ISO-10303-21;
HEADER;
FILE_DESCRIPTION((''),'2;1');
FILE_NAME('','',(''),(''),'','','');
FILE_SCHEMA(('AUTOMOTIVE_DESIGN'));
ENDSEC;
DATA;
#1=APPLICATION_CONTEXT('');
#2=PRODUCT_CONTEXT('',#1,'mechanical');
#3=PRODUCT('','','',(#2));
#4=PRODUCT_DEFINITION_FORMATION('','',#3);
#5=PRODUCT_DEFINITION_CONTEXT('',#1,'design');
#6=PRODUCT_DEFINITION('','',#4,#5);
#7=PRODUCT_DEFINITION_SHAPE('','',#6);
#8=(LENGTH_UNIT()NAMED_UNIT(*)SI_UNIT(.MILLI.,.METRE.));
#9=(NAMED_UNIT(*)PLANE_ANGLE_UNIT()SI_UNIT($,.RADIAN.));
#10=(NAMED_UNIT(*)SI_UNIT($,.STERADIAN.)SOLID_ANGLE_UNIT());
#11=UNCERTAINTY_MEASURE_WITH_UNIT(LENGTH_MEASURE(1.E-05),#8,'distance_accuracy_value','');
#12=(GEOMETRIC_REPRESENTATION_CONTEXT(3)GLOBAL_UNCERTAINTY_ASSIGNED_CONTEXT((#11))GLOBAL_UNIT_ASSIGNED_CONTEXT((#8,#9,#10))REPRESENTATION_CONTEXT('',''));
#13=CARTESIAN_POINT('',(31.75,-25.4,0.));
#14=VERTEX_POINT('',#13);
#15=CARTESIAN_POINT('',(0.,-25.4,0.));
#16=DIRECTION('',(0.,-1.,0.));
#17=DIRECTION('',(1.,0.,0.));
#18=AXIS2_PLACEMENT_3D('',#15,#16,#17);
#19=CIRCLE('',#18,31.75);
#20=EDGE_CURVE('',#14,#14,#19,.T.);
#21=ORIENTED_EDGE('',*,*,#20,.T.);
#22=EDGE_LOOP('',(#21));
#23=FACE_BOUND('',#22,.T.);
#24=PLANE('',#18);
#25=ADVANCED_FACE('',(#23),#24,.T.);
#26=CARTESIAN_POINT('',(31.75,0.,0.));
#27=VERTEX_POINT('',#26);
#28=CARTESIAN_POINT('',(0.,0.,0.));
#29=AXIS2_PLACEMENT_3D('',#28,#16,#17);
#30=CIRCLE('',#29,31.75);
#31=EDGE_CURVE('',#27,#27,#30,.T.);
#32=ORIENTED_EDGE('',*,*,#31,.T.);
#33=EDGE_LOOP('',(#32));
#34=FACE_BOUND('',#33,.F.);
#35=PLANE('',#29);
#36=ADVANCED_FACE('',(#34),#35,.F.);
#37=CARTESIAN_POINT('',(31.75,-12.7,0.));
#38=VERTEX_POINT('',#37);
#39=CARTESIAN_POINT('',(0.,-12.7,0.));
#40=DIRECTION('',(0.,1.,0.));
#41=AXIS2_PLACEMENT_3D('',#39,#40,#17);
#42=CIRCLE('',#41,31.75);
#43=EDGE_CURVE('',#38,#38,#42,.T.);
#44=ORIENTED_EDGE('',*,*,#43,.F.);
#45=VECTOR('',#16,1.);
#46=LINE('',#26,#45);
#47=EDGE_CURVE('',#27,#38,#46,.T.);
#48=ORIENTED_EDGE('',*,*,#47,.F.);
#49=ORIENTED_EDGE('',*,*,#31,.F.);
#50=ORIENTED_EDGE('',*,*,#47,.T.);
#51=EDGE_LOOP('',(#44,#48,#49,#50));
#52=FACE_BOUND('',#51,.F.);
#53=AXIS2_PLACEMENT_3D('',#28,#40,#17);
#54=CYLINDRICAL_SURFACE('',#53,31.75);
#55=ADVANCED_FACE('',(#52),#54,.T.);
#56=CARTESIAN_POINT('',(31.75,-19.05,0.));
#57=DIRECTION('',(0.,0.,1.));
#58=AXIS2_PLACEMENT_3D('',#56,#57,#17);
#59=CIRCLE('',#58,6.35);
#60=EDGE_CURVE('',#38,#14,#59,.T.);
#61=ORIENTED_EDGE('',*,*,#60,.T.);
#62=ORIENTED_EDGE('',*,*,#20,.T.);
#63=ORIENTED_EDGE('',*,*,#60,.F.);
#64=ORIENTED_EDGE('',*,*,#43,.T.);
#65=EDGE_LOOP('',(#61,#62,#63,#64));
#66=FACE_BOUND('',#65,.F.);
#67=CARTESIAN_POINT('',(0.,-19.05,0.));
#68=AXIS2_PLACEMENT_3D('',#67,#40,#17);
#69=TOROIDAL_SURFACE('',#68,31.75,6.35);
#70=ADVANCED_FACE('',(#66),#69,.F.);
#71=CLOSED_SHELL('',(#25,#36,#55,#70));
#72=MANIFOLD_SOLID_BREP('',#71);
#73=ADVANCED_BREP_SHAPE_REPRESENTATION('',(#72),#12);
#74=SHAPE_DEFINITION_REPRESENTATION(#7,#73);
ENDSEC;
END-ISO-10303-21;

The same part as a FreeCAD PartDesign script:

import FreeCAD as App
import Part
import Sketcher
from FreeCAD import Vector
Q = App.Units.Quantity

doc = App.newDocument("Part")
body = doc.addObject("PartDesign::Body", "Body")

sketch1 = body.newObject("Sketcher::SketchObject", "Sketch")
sketch1.AttachmentSupport = (doc.getObject("XZ_Plane"), [""])
sketch1.MapMode = "FlatFace"
sketch1.addGeometry(Part.Circle(Vector(0, 0, 0), Vector(0, 0, 1), 32), False)
sketch1.addConstraint([
    Sketcher.Constraint("Coincident", 0, 3, -1, 1),
    Sketcher.Constraint("Diameter", 0, Q("2.5 in")),
])
pad1 = body.newObject("PartDesign::Pad", "Pad")
pad1.Profile = sketch1
pad1.Length = Q("1 in")

sketch2 = body.newObject("Sketcher::SketchObject", "Sketch001")
sketch2.AttachmentSupport = (doc.getObject("YZ_Plane"), [""])
sketch2.MapMode = "FlatFace"
sketch2.addGeometry(Part.Circle(Vector(-19, 32, 0), Vector(0, 0, 1), 6), False)
sketch2.addConstraint([
    Sketcher.Constraint("Diameter", 0, Q("0.5 in")),
    Sketcher.Constraint("DistanceX", 0, 3, -1, 1, Q("0.75 in")),
    Sketcher.Constraint("DistanceY", -1, 1, 0, 3, Q("1.25 in")),
])

sketch3 = body.newObject("Sketcher::SketchObject", "Sketch002")
sketch3.AttachmentSupport = (doc.getObject("XZ_Plane"), [""])
sketch3.MapMode = "FlatFace"
sketch3.AttachmentOffset = App.Placement(Vector(0, 0, 0.75 * 25.4), App.Rotation())
sketch3.addGeometry(Part.Circle(Vector(0, 0, 0), Vector(0, 0, 1), 32), False)
sketch3.addConstraint([
    Sketcher.Constraint("Coincident", 0, 3, -1, 1),
    Sketcher.Constraint("Diameter", 0, Q("2.5 in")),
])
doc.recompute()

subtractivepipe = body.newObject("PartDesign::SubtractivePipe", "SubtractivePipe")
subtractivepipe.Profile = sketch2
subtractivepipe.Spine = (sketch3, ["Edge1"])

doc.recompute()
